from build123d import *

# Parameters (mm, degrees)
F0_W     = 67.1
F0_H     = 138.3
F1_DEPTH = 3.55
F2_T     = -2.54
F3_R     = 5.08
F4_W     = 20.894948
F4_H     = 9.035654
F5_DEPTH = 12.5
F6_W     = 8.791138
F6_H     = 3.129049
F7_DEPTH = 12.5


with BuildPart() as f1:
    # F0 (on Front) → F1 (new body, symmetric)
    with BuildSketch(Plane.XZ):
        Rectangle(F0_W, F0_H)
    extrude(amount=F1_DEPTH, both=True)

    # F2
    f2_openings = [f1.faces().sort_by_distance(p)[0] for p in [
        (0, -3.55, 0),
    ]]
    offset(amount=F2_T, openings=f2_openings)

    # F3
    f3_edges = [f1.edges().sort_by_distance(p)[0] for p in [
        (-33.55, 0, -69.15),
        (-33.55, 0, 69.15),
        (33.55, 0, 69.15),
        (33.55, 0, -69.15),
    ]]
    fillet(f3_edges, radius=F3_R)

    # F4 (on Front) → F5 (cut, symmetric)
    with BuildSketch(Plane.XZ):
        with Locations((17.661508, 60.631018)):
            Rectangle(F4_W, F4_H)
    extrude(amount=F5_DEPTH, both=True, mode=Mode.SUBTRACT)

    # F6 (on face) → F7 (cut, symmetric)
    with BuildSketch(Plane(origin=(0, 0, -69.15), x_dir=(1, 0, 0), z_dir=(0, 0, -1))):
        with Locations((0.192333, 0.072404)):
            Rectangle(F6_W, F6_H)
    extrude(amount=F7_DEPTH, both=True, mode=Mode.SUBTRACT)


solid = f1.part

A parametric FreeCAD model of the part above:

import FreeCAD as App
import Part
import Sketcher
from FreeCAD import Vector
Q = App.Units.Quantity


def edges_at(feature, points):
    """Names of the edges that pass closest to the given points."""
    edges = feature.Shape.Edges
    near = lambda p: min(range(len(edges)), key=lambda i: edges[i].distToShape(Part.Vertex(*p))[0])
    return sorted({f"Edge{near(p) + 1}" for p in points})


def faces_at(feature, points):
    """Names of the faces that lie closest to the given points."""
    faces = feature.Shape.Faces
    near = lambda p: min(range(len(faces)), key=lambda i: faces[i].distToShape(Part.Vertex(*p))[0])
    return sorted({f"Face{near(p) + 1}" for p in points})


def add_polygon(sketch, points):
    """Adds a closed chain of lines whose ends are joined by coincident constraints."""
    first, n = sketch.GeometryCount, len(points)
    for a, b in zip(points, points[1:] + points[:1]):
        sketch.addGeometry(Part.LineSegment(App.Vector(*a, 0), App.Vector(*b, 0)), False)
    for i in range(n):
        sketch.addConstraint(Sketcher.Constraint("Coincident", first + i, 2, first + (i + 1) % n, 1))

doc = App.newDocument("Part")
body = doc.addObject("PartDesign::Body", "Body")

# Sketch on XZ plane
sketch1 = body.newObject("Sketcher::SketchObject", "Sketch")
sketch1.AttachmentSupport = (doc.getObject("XZ_Plane"), [""])
sketch1.MapMode = "FlatFace"
add_polygon(sketch1, [(-34, 69), (-34, -69), (34, -69), (34, 69)])  # lines 0-3
sketch1.addConstraint(Sketcher.Constraint("Vertical", 0))
sketch1.addConstraint(Sketcher.Constraint("Horizontal", 1))
sketch1.addConstraint(Sketcher.Constraint("Vertical", 2))
sketch1.addConstraint(Sketcher.Constraint("Horizontal", 3))
sketch1.addConstraint(Sketcher.Constraint("Symmetric", 0, 2, 2, 2, -1, 1))
sketch1.addConstraint(Sketcher.Constraint("DistanceX", 1, 1, 1, 2, Q("67.1 mm")))
sketch1.addConstraint(Sketcher.Constraint("DistanceY", 0, 2, 0, 1, Q("138.3 mm")))
pad1 = body.newObject("PartDesign::Pad", "Pad")
pad1.Profile = sketch1
pad1.Length = 7.1
pad1.Midplane = True
doc.recompute()

thickness = body.newObject("PartDesign::Thickness", "Thickness")
thickness.Base = (pad1, faces_at(pad1, [(0, -3.55, 0)]))
thickness.Value = 2.54
thickness.Reversed = True
thickness.Join = "Arc"
doc.recompute()

fillet = body.newObject("PartDesign::Fillet", "Fillet")
fillet.Base = (thickness, edges_at(thickness, [
    (-33.55, 0, -69.15),
    (-33.55, 0, 69.15),
    (33.55, 0, 69.15),
    (33.55, 0, -69.15),
]))
fillet.Radius = 5.08

# Sketch on XZ plane
sketch2 = body.newObject("Sketcher::SketchObject", "Sketch001")
sketch2.AttachmentSupport = (doc.getObject("XZ_Plane"), [""])
sketch2.MapMode = "FlatFace"
add_polygon(sketch2, [(7, 65), (7, 56), (28, 56), (28, 65)])  # lines 0-3
sketch2.addConstraint(Sketcher.Constraint("Vertical", 0))
sketch2.addConstraint(Sketcher.Constraint("Horizontal", 1))
sketch2.addConstraint(Sketcher.Constraint("Vertical", 2))
sketch2.addConstraint(Sketcher.Constraint("Horizontal", 3))
sketch2.addConstraint(Sketcher.Constraint("DistanceX", 1, 1, 1, 2, Q("20.894948 mm")))
sketch2.addConstraint(Sketcher.Constraint("DistanceY", 0, 2, 0, 1, Q("9.035654 mm")))
sketch2.addConstraint(Sketcher.Constraint("DistanceY", -1, 1, 0, 2, Q("56.113191 mm")))
sketch2.addConstraint(Sketcher.Constraint("DistanceX", -1, 1, 0, 2, Q("7.214034 mm")))
pocket1 = body.newObject("PartDesign::Pocket", "Pocket")
pocket1.Profile = sketch2
pocket1.Length = 25
pocket1.Midplane = True

# Sketch on XY plane
sketch3 = body.newObject("Sketcher::SketchObject", "Sketch002")
sketch3.AttachmentSupport = (doc.getObject("XY_Plane"), [""])
sketch3.MapMode = "FlatFace"
sketch3.AttachmentOffset = App.Placement(Vector(0, 0, -69.15), App.Rotation())
add_polygon(sketch3, [(-4.2, -1.6), (-4.2, 1.5), (4.6, 1.5), (4.6, -1.6)])  # lines 0-3
sketch3.addConstraint(Sketcher.Constraint("Vertical", 0))
sketch3.addConstraint(Sketcher.Constraint("Horizontal", 1))
sketch3.addConstraint(Sketcher.Constraint("Vertical", 2))
sketch3.addConstraint(Sketcher.Constraint("Horizontal", 3))
sketch3.addConstraint(Sketcher.Constraint("DistanceY", 0, 1, 0, 2, Q("3.129049 mm")))
sketch3.addConstraint(Sketcher.Constraint("DistanceX", -1, 1, 1, 2, Q("4.587902 mm")))
sketch3.addConstraint(Sketcher.Constraint("DistanceX", 1, 1, 1, 2, Q("8.791138 mm")))
sketch3.addConstraint(Sketcher.Constraint("DistanceY", -1, 1, 0, 2, Q("1.49212 mm")))
pocket2 = body.newObject("PartDesign::Pocket", "Pocket001")
pocket2.Profile = sketch3
pocket2.Length = 25
pocket2.Midplane = True

doc.recompute()
